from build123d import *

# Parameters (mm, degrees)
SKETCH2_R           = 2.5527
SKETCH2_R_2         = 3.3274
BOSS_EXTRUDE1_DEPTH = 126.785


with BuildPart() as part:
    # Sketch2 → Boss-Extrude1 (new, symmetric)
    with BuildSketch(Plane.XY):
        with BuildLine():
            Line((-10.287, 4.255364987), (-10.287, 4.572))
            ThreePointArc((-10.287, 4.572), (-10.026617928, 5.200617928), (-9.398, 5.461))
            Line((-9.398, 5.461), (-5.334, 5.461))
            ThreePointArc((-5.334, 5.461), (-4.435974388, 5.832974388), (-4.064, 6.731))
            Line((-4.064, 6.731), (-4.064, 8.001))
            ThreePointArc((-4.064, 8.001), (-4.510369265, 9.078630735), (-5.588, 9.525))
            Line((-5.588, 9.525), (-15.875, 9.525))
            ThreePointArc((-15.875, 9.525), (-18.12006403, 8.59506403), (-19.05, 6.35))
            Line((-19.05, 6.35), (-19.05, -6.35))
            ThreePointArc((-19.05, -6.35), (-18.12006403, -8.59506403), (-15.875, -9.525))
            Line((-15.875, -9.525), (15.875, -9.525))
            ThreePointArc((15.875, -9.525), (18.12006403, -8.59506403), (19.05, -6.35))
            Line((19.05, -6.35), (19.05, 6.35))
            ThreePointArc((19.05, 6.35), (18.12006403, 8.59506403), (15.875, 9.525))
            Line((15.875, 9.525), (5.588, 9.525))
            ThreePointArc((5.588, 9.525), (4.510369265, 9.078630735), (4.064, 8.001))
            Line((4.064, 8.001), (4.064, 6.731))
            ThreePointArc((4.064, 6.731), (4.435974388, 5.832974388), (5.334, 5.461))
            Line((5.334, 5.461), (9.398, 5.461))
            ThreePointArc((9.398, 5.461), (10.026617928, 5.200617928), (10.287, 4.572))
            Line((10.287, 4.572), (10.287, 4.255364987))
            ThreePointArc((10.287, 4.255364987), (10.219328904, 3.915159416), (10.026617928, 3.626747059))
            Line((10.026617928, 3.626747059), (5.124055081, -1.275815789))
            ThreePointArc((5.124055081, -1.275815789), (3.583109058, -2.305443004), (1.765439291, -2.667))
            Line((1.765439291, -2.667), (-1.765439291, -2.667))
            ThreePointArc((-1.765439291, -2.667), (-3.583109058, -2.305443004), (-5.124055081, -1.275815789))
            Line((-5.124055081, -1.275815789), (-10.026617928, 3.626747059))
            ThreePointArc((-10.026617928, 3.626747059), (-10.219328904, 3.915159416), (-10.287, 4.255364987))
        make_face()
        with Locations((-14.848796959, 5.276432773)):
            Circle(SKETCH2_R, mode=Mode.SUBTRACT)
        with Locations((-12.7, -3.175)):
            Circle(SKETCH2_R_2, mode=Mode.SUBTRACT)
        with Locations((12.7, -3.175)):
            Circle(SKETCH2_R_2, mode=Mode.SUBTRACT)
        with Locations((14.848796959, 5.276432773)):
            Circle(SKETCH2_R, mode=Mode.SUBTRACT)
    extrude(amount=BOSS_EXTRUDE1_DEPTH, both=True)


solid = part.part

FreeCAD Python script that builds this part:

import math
import FreeCAD as App
import Part
import Sketcher
from FreeCAD import Vector
Q = App.Units.Quantity

doc = App.newDocument("Part")
params = doc.addObject("Spreadsheet::Sheet", "Params")
for row, (alias, value) in enumerate([
    ("sketch1_radius", "0.05 in"),
    ("sketch1_radius2", "0.06 in"),
    ("sketch1_diameter", "0.262 in"),
    ("sketch1_diameter2", "0.201 in"),
    ("sketch1_height", "0.5 in"),
    ("pad1_length", "253.57 mm"),
], start=1):
    params.set(f"A{row}", alias)
    params.set(f"B{row}", "=" + value)
    params.setAlias(f"B{row}", alias)

body = doc.addObject("PartDesign::Body", "Body")

# Sketch on XY plane
sketch1 = body.newObject("Sketcher::SketchObject", "Sketch")
sketch1.AttachmentSupport = (doc.getObject("XY_Plane"), [""])
sketch1.MapMode = "FlatFace"
sketch1.addGeometry(Part.LineSegment(Vector(-10.29, 4.26, 0), Vector(-10.29, 4.57, 0)), False)
sketch1.addGeometry(Part.ArcOfCircle(Part.Circle(Vector(-9.4, 4.57, 0), Vector(0, 0, 1), 0.89), math.radians(90), math.radians(180)), False)
sketch1.addGeometry(Part.LineSegment(Vector(-9.4, 5.46, 0), Vector(-5.33, 5.46, 0)), False)
sketch1.addGeometry(Part.ArcOfCircle(Part.Circle(Vector(-5.33, 6.73, 0), Vector(0, 0, 1), 1.27), math.radians(-90), math.radians(0)), False)
sketch1.addGeometry(Part.LineSegment(Vector(-4.06, 6.73, 0), Vector(-4.06, 8, 0)), False)
sketch1.addGeometry(Part.ArcOfCircle(Part.Circle(Vector(-5.59, 8, 0), Vector(0, 0, 1), 1.52), math.radians(0), math.radians(90)), False)
sketch1.addGeometry(Part.LineSegment(Vector(-5.59, 9.53, 0), Vector(-15.88, 9.53, 0)), False)
sketch1.addGeometry(Part.ArcOfCircle(Part.Circle(Vector(-15.87, 6.35, 0), Vector(0, 0, 1), 3.18), math.radians(90), math.radians(180)), False)
sketch1.addGeometry(Part.LineSegment(Vector(-19.05, 6.35, 0), Vector(-19.05, -6.35, 0)), False)
sketch1.addGeometry(Part.ArcOfCircle(Part.Circle(Vector(-15.87, -6.35, 0), Vector(0, 0, 1), 3.18), math.radians(-180), math.radians(-90)), False)
sketch1.addGeometry(Part.LineSegment(Vector(-15.88, -9.53, 0), Vector(15.88, -9.53, 0)), False)
sketch1.addGeometry(Part.ArcOfCircle(Part.Circle(Vector(15.87, -6.35, 0), Vector(0, 0, 1), 3.18), math.radians(-90), math.radians(0)), False)
sketch1.addGeometry(Part.LineSegment(Vector(19.05, -6.35, 0), Vector(19.05, 6.35, 0)), False)
sketch1.addGeometry(Part.ArcOfCircle(Part.Circle(Vector(15.87, 6.35, 0), Vector(0, 0, 1), 3.18), math.radians(0), math.radians(90)), False)
sketch1.addGeometry(Part.LineSegment(Vector(15.88, 9.53, 0), Vector(5.59, 9.53, 0)), False)
sketch1.addGeometry(Part.ArcOfCircle(Part.Circle(Vector(5.59, 8, 0), Vector(0, 0, 1), 1.52), math.radians(90), math.radians(180)), False)
sketch1.addGeometry(Part.LineSegment(Vector(4.06, 8, 0), Vector(4.06, 6.73, 0)), False)
sketch1.addGeometry(Part.ArcOfCircle(Part.Circle(Vector(5.33, 6.73, 0), Vector(0, 0, 1), 1.27), math.radians(180), math.radians(270)), False)
sketch1.addGeometry(Part.LineSegment(Vector(5.33, 5.46, 0), Vector(9.4, 5.46, 0)), False)
sketch1.addGeometry(Part.ArcOfCircle(Part.Circle(Vector(9.4, 4.57, 0), Vector(0, 0, 1), 0.89), math.radians(0), math.radians(90)), False)
sketch1.addGeometry(Part.LineSegment(Vector(10.29, 4.57, 0), Vector(10.29, 4.26, 0)), False)
sketch1.addGeometry(Part.ArcOfCircle(Part.Circle(Vector(9.4, 4.26, 0), Vector(0, 0, 1), 0.89), math.radians(-45), math.radians(0)), False)
sketch1.addGeometry(Part.LineSegment(Vector(10.03, 3.63, 0), Vector(5.12, -1.28, 0)), False)
sketch1.addGeometry(Part.ArcOfCircle(Part.Circle(Vector(1.77, 2.08, 0), Vector(0, 0, 1), 4.75), math.radians(-90), math.radians(-45)), False)
sketch1.addGeometry(Part.LineSegment(Vector(1.77, -2.67, 0), Vector(-1.77, -2.67, 0)), False)
sketch1.addGeometry(Part.ArcOfCircle(Part.Circle(Vector(-1.77, 2.08, 0), Vector(0, 0, 1), 4.75), math.radians(-135), math.radians(-90)), False)
sketch1.addGeometry(Part.LineSegment(Vector(-5.12, -1.28, 0), Vector(-10.03, 3.63, 0)), False)
sketch1.addGeometry(Part.ArcOfCircle(Part.Circle(Vector(-9.4, 4.26, 0), Vector(0, 0, 1), 0.89), math.radians(-180), math.radians(-135)), False)
sketch1.addGeometry(Part.Circle(Vector(-12.7, -3.17, 0), Vector(0, 0, 1), 3.33), False)
sketch1.addGeometry(Part.Circle(Vector(12.7, -3.17, 0), Vector(0, 0, 1), 3.33), False)
sketch1.addGeometry(Part.Circle(Vector(-14.85, 5.28, 0), Vector(0, 0, 1), 2.55), False)
sketch1.addGeometry(Part.Circle(Vector(14.85, 5.28, 0), Vector(0, 0, 1), 2.55), False)
sketch1.addConstraint(Sketcher.Constraint("Tangent", 0, 2, 1, 2))
sketch1.addConstraint(Sketcher.Constraint("Tangent", 1, 1, 2, 1))
sketch1.addConstraint(Sketcher.Constraint("Tangent", 2, 2, 3, 1))
sketch1.addConstraint(Sketcher.Constraint("Tangent", 3, 2, 4, 1))
sketch1.addConstraint(Sketcher.Constraint("Tangent", 4, 2, 5, 1))
sketch1.addConstraint(Sketcher.Constraint("Tangent", 5, 2, 6, 1))
sketch1.addConstraint(Sketcher.Constraint("Tangent", 6, 2, 7, 1))
sketch1.addConstraint(Sketcher.Constraint("Tangent", 7, 2, 8, 1))
sketch1.addConstraint(Sketcher.Constraint("Tangent", 8, 2, 9, 1))
sketch1.addConstraint(Sketcher.Constraint("Tangent", 9, 2, 10, 1))
sketch1.addConstraint(Sketcher.Constraint("Tangent", 10, 2, 11, 1))
sketch1.addConstraint(Sketcher.Constraint("Tangent", 11, 2, 12, 1))
sketch1.addConstraint(Sketcher.Constraint("Tangent", 12, 2, 13, 1))
sketch1.addConstraint(Sketcher.Constraint("Tangent", 13, 2, 14, 1))
sketch1.addConstraint(Sketcher.Constraint("Tangent", 14, 2, 15, 1))
sketch1.addConstraint(Sketcher.Constraint("Tangent", 15, 2, 16, 1))
sketch1.addConstraint(Sketcher.Constraint("Tangent", 16, 2, 17, 1))
sketch1.addConstraint(Sketcher.Constraint("Tangent", 17, 2, 18, 1))
sketch1.addConstraint(Sketcher.Constraint("Tangent", 18, 2, 19, 2))
sketch1.addConstraint(Sketcher.Constraint("Tangent", 19, 1, 20, 1))
sketch1.addConstraint(Sketcher.Constraint("Tangent", 20, 2, 21, 2))
sketch1.addConstraint(Sketcher.Constraint("Tangent", 21, 1, 22, 1))
sketch1.addConstraint(Sketcher.Constraint("Tangent", 22, 2, 23, 2))
sketch1.addConstraint(Sketcher.Constraint("Tangent", 23, 1, 24, 1))
sketch1.addConstraint(Sketcher.Constraint("Tangent", 24, 2, 25, 2))
sketch1.addConstraint(Sketcher.Constraint("Tangent", 25, 1, 26, 1))
sketch1.addConstraint(Sketcher.Constraint("Tangent", 26, 2, 27, 2))
sketch1.addConstraint(Sketcher.Constraint("Tangent", 27, 1, 0, 1))
sketch1.addConstraint(Sketcher.Constraint("Vertical", 0))
sketch1.addConstraint(Sketcher.Constraint("Horizontal", 2))
sketch1.addConstraint(Sketcher.Constraint("Vertical", 4))
sketch1.addConstraint(Sketcher.Constraint("Horizontal", 6))
sketch1.addConstraint(Sketcher.Constraint("Vertical", 8))
sketch1.addConstraint(Sketcher.Constraint("Horizontal", 10))
sketch1.addConstraint(Sketcher.Constraint("Vertical", 12))
sketch1.addConstraint(Sketcher.Constraint("Horizontal", 14))
sketch1.addConstraint(Sketcher.Constraint("Vertical", 16))
sketch1.addConstraint(Sketcher.Constraint("Horizontal", 18))
sketch1.addConstraint(Sketcher.Constraint("Vertical", 20))
sketch1.addConstraint(Sketcher.Constraint("Horizontal", 24))
sketch1.addConstraint(Sketcher.Constraint("Equal", 7, 9))
sketch1.addConstraint(Sketcher.Constraint("Equal", 9, 11))
sketch1.addConstraint(Sketcher.Constraint("Equal", 11, 13))
sketch1.addConstraint(Sketcher.Constraint("Equal", 5, 15))
sketch1.addConstraint(Sketcher.Constraint("Equal", 3, 17))
sketch1.addConstraint(Sketcher.Constraint("Equal", 1, 19))
sketch1.addConstraint(Sketcher.Constraint("Equal", 19, 21))
sketch1.addConstraint(Sketcher.Constraint("Equal", 23, 25))
sketch1.addConstraint(Sketcher.Constraint("Equal", 21, 27))
sketch1.addConstraint(Sketcher.Constraint("Equal", 28, 29))
sketch1.addConstraint(Sketcher.Constraint("Equal", 30, 31))
sketch1.addConstraint(Sketcher.Constraint("Symmetric", 7, 3, 11, 3, -1, 1))
sketch1.addConstraint(Sketcher.Constraint("Symmetric", 5, 3, 15, 3, -2))
sketch1.addConstraint(Sketcher.Constraint("Symmetric", 1, 3, 19, 3, -2))
sketch1.addConstraint(Sketcher.Constraint("Symmetric", 28, 3, 29, 3, -2))
sketch1.addConstraint(Sketcher.Constraint("Symmetric", 30, 3, 31, 3, -2))
sketch1.addConstraint(Sketcher.Constraint("Symmetric", 22, 2, 25, 1, -2))
sketch1.addConstraint(Sketcher.Constraint("Perpendicular", 22, 26))
sketch1.addConstraint(Sketcher.Constraint("Radius", 3, Q("0.05 in")))
sketch1.addConstraint(Sketcher.Constraint("Radius", 5, Q("0.06 in")))
sketch1.addConstraint(Sketcher.Constraint("Diameter", 28, Q("0.262 in")))
sketch1.addConstraint(Sketcher.Constraint("Diameter", 30, Q("0.201 in")))
sketch1.addConstraint(Sketcher.Constraint("DistanceY", 8, 2, 8, 1, Q("0.5 in")))
sketch1.addConstraint(Sketcher.Constraint("Radius", 1, Q("0.035 in")))
sketch1.addConstraint(Sketcher.Constraint("Radius", 7, Q("0.125 in")))
sketch1.addConstraint(Sketcher.Constraint("Radius", 23, Q("0.187 in")))
sketch1.addConstraint(Sketcher.Constraint("DistanceX", 2, 1, 2, 2, Q("0.16 in")))
sketch1.addConstraint(Sketcher.Constraint("DistanceX", 10, 1, 10, 2, Q("1.25 in")))
sketch1.addConstraint(Sketcher.Constraint("DistanceY", 4, 1, 4, 2, Q("0.05 in")))
sketch1.addConstraint(Sketcher.Constraint("DistanceX", 28, 3, -1, 1, Q("0.5 in")))
sketch1.addConstraint(Sketcher.Constraint("DistanceX", 6, 2, 6, 1, Q("0.405 in")))
sketch1.addConstraint(Sketcher.Constraint("DistanceY", 9, 2, 28, 3, Q("0.25 in")))
sketch1.addConstraint(Sketcher.Constraint("DistanceY", 23, 1, 17, 2, Q("0.32 in")))
sketch1.addConstraint(Sketcher.Constraint("DistanceX", 24, 2, 24, 1, 3.530879))
sketch1.addConstraint(Sketcher.Constraint("DistanceX", 30, 3, -1, 1, 14.848797))
sketch1.addConstraint(Sketcher.Constraint("DistanceY", -1, 1, 30, 3, 5.276433))
sketch1.setExpression("Constraints[58]", "Params.sketch1_radius")
sketch1.setExpression("Constraints[59]", "Params.sketch1_radius2")
sketch1.setExpression("Constraints[60]", "Params.sketch1_diameter")
sketch1.setExpression("Constraints[61]", "Params.sketch1_diameter2")
sketch1.setExpression("Constraints[62]", "Params.sketch1_height")
pad1 = body.newObject("PartDesign::Pad", "Pad")
pad1.Profile = sketch1
pad1.setExpression("Length", "Params.pad1_length")
pad1.Midplane = True

doc.recompute()
